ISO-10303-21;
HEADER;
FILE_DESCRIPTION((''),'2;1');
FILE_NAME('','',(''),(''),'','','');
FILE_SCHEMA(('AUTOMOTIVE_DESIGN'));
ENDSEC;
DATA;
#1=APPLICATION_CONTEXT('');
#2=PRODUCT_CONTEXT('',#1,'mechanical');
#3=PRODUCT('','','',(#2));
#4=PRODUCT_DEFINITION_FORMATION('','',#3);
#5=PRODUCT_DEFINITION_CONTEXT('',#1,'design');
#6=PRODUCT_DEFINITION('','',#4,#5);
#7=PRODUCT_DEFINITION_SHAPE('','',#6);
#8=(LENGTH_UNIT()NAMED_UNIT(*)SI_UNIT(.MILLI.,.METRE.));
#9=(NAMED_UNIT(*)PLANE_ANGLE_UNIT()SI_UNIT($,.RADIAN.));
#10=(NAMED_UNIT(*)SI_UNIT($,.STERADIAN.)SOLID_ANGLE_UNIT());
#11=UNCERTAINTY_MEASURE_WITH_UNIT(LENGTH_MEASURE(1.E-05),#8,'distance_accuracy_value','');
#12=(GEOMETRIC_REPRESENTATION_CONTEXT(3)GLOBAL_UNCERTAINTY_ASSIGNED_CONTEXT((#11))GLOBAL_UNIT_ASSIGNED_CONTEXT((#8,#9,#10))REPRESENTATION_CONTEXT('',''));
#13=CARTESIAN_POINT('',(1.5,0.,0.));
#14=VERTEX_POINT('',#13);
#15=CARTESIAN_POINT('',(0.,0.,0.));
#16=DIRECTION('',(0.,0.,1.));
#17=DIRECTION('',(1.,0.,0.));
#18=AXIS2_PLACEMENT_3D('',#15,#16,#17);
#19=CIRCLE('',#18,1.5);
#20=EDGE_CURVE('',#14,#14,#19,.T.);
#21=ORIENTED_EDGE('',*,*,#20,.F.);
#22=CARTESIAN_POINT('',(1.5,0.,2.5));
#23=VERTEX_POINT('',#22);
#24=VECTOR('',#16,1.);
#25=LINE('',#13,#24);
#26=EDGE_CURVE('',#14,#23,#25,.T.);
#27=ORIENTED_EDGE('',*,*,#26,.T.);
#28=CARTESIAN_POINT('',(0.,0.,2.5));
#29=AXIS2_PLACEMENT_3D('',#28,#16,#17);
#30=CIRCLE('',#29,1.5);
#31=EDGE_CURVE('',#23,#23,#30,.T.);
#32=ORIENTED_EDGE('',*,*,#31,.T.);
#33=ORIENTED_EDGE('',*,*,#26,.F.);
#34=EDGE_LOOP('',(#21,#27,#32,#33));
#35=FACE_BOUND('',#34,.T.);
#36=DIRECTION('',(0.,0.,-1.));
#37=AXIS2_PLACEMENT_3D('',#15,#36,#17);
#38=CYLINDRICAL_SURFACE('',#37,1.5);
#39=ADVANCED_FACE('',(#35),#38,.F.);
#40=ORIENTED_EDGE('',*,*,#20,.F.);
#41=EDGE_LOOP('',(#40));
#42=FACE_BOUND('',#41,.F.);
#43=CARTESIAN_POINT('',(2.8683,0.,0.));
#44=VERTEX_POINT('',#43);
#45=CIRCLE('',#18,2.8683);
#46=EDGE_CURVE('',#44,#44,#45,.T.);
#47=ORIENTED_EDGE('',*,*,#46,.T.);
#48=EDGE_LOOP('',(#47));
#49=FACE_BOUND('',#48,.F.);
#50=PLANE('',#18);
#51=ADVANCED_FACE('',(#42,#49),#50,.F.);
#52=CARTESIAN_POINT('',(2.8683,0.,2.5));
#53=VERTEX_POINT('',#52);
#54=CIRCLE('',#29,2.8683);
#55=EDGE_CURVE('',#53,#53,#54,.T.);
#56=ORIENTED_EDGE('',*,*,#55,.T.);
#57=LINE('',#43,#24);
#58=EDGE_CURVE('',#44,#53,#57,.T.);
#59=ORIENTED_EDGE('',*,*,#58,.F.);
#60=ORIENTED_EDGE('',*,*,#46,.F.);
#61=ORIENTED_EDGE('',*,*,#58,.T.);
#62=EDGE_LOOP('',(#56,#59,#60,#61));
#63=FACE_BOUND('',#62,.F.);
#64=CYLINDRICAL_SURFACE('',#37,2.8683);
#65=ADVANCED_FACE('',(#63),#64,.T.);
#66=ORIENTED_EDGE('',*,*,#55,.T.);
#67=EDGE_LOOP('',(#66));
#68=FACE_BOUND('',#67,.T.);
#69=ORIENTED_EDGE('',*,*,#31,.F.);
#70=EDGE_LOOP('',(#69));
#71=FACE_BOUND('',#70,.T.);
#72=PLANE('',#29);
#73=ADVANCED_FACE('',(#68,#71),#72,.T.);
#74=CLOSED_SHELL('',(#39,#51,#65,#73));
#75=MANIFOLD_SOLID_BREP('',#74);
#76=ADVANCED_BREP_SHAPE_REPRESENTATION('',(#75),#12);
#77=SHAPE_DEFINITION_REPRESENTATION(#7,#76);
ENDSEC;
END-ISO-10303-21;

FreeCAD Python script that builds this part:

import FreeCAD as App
import Part
import Sketcher
Q = App.Units.Quantity

doc = App.newDocument("Part")
body = doc.addObject("PartDesign::Body", "Body")

# Sketch on XY plane
sketch1 = body.newObject("Sketcher::SketchObject", "Sketch")
sketch1.AttachmentSupport = (doc.getObject("XY_Plane"), [""])
sketch1.MapMode = "FlatFace"
sketch1.addGeometry([
    Part.Circle(App.Vector(0, 0, 0), App.Vector(0, 0, 1), 2.9),
    Part.Circle(App.Vector(0, 0, 0), App.Vector(0, 0, 1), 1.5),
], False)
sketch1.addConstraint([
    Sketcher.Constraint("Coincident", 0, 3, -1, 1),
    Sketcher.Constraint("Coincident", 1, 3, -1, 1),
    Sketcher.Constraint("Diameter", 1, Q("3 mm")),
    Sketcher.Constraint("Diameter", 0, Q("5.7366 mm")),
])
pad1 = body.newObject("PartDesign::Pad", "Pad")
pad1.Profile = sketch1
pad1.Length = 2.5

doc.recompute()
